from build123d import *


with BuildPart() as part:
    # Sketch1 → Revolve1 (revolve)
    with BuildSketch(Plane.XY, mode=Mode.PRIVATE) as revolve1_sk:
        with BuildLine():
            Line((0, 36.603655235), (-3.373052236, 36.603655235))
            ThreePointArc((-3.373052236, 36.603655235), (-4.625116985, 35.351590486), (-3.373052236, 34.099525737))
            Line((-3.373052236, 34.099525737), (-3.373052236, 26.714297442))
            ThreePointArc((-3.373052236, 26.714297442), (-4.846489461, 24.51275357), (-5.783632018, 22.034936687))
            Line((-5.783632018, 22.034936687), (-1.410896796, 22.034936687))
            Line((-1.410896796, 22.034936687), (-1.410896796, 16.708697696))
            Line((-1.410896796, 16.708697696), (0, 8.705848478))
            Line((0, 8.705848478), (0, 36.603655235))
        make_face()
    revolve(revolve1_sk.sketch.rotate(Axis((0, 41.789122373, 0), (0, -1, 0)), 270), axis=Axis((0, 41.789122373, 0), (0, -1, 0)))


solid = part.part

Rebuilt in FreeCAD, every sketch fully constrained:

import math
import FreeCAD as App
import Part
import Sketcher
from FreeCAD import Vector

doc = App.newDocument("Part")
body = doc.addObject("PartDesign::Body", "Body")

# Sketch on XY plane
sketch1 = body.newObject("Sketcher::SketchObject", "Sketch")
sketch1.AttachmentSupport = (doc.getObject("XY_Plane"), [""])
sketch1.MapMode = "FlatFace"
sketch1.addGeometry(Part.LineSegment(Vector(0, 36.6, 0), Vector(-3.4, 36.6, 0)), False)
sketch1.addGeometry(Part.ArcOfCircle(Part.Circle(Vector(-3.4, 35.4, 0), Vector(0, 0, 1), 1.3), math.radians(90), math.radians(270)), False)
sketch1.addGeometry(Part.LineSegment(Vector(-3.4, 34.1, 0), Vector(-3.4, 26.7, 0)), False)
sketch1.addGeometry(Part.ArcOfCircle(Part.Circle(Vector(5.5, 19.2, 0), Vector(0, 0, 1), 11.6), math.radians(140), math.radians(166)), False)
sketch1.addGeometry(Part.LineSegment(Vector(-5.8, 22, 0), Vector(-1.4, 22, 0)), False)
sketch1.addGeometry(Part.LineSegment(Vector(-1.4, 22, 0), Vector(-1.4, 16.7, 0)), False)
sketch1.addGeometry(Part.LineSegment(Vector(-1.4, 16.7, 0), Vector(0, 8.7, 0)), False)
sketch1.addGeometry(Part.LineSegment(Vector(0, 8.7, 0), Vector(0, 36.6, 0)), False)
sketch1.addConstraint(Sketcher.Constraint("Tangent", 0, 2, 1, 1))
sketch1.addConstraint(Sketcher.Constraint("Coincident", 1, 2, 2, 1))
sketch1.addConstraint(Sketcher.Constraint("Coincident", 2, 2, 3, 1))
sketch1.addConstraint(Sketcher.Constraint("Coincident", 3, 2, 4, 1))
sketch1.addConstraint(Sketcher.Constraint("Coincident", 4, 2, 5, 1))
sketch1.addConstraint(Sketcher.Constraint("Coincident", 5, 2, 6, 1))
sketch1.addConstraint(Sketcher.Constraint("Coincident", 6, 2, 7, 1))
sketch1.addConstraint(Sketcher.Constraint("Coincident", 7, 2, 0, 1))
sketch1.addConstraint(Sketcher.Constraint("Horizontal", 0))
sketch1.addConstraint(Sketcher.Constraint("Vertical", 2))
sketch1.addConstraint(Sketcher.Constraint("Horizontal", 4))
sketch1.addConstraint(Sketcher.Constraint("Vertical", 5))
sketch1.addConstraint(Sketcher.Constraint("Vertical", 7))
sketch1.addConstraint(Sketcher.Constraint("PointOnObject", 6, 2, -2))
sketch1.addConstraint(Sketcher.Constraint("Vertical", 0, 2, 1, 2))
sketch1.addConstraint(Sketcher.Constraint("Radius", 3, 11.63289))
sketch1.addConstraint(Sketcher.Constraint("Radius", 1, 1.252065))
sketch1.addConstraint(Sketcher.Constraint("DistanceY", 2, 2, 2, 1, 7.385228))
sketch1.addConstraint(Sketcher.Constraint("DistanceY", 5, 2, 5, 1, 5.326239))
sketch1.addConstraint(Sketcher.Constraint("DistanceY", 5, 2, 2, 2, 10.0056))
sketch1.addConstraint(Sketcher.Constraint("DistanceX", 0, 2, 0, 1, 3.373052))
sketch1.addConstraint(Sketcher.Constraint("DistanceX", 4, 1, 4, 2, 4.372735))
sketch1.addConstraint(Sketcher.Constraint("DistanceY", 7, 1, 7, 2, 27.897807))
sketch1.addConstraint(Sketcher.Constraint("DistanceY", -1, 1, 1, 3, 35.35159))
sketch1.addConstraint(Sketcher.Constraint("DistanceY", 3, 3, 0, 2, 17.41826))
revolution = body.newObject("PartDesign::Revolution", "Revolution")
revolution.Profile = sketch1
revolution.ReferenceAxis = (sketch1, ["V_Axis"])
revolution.Angle = 360

doc.recompute()
